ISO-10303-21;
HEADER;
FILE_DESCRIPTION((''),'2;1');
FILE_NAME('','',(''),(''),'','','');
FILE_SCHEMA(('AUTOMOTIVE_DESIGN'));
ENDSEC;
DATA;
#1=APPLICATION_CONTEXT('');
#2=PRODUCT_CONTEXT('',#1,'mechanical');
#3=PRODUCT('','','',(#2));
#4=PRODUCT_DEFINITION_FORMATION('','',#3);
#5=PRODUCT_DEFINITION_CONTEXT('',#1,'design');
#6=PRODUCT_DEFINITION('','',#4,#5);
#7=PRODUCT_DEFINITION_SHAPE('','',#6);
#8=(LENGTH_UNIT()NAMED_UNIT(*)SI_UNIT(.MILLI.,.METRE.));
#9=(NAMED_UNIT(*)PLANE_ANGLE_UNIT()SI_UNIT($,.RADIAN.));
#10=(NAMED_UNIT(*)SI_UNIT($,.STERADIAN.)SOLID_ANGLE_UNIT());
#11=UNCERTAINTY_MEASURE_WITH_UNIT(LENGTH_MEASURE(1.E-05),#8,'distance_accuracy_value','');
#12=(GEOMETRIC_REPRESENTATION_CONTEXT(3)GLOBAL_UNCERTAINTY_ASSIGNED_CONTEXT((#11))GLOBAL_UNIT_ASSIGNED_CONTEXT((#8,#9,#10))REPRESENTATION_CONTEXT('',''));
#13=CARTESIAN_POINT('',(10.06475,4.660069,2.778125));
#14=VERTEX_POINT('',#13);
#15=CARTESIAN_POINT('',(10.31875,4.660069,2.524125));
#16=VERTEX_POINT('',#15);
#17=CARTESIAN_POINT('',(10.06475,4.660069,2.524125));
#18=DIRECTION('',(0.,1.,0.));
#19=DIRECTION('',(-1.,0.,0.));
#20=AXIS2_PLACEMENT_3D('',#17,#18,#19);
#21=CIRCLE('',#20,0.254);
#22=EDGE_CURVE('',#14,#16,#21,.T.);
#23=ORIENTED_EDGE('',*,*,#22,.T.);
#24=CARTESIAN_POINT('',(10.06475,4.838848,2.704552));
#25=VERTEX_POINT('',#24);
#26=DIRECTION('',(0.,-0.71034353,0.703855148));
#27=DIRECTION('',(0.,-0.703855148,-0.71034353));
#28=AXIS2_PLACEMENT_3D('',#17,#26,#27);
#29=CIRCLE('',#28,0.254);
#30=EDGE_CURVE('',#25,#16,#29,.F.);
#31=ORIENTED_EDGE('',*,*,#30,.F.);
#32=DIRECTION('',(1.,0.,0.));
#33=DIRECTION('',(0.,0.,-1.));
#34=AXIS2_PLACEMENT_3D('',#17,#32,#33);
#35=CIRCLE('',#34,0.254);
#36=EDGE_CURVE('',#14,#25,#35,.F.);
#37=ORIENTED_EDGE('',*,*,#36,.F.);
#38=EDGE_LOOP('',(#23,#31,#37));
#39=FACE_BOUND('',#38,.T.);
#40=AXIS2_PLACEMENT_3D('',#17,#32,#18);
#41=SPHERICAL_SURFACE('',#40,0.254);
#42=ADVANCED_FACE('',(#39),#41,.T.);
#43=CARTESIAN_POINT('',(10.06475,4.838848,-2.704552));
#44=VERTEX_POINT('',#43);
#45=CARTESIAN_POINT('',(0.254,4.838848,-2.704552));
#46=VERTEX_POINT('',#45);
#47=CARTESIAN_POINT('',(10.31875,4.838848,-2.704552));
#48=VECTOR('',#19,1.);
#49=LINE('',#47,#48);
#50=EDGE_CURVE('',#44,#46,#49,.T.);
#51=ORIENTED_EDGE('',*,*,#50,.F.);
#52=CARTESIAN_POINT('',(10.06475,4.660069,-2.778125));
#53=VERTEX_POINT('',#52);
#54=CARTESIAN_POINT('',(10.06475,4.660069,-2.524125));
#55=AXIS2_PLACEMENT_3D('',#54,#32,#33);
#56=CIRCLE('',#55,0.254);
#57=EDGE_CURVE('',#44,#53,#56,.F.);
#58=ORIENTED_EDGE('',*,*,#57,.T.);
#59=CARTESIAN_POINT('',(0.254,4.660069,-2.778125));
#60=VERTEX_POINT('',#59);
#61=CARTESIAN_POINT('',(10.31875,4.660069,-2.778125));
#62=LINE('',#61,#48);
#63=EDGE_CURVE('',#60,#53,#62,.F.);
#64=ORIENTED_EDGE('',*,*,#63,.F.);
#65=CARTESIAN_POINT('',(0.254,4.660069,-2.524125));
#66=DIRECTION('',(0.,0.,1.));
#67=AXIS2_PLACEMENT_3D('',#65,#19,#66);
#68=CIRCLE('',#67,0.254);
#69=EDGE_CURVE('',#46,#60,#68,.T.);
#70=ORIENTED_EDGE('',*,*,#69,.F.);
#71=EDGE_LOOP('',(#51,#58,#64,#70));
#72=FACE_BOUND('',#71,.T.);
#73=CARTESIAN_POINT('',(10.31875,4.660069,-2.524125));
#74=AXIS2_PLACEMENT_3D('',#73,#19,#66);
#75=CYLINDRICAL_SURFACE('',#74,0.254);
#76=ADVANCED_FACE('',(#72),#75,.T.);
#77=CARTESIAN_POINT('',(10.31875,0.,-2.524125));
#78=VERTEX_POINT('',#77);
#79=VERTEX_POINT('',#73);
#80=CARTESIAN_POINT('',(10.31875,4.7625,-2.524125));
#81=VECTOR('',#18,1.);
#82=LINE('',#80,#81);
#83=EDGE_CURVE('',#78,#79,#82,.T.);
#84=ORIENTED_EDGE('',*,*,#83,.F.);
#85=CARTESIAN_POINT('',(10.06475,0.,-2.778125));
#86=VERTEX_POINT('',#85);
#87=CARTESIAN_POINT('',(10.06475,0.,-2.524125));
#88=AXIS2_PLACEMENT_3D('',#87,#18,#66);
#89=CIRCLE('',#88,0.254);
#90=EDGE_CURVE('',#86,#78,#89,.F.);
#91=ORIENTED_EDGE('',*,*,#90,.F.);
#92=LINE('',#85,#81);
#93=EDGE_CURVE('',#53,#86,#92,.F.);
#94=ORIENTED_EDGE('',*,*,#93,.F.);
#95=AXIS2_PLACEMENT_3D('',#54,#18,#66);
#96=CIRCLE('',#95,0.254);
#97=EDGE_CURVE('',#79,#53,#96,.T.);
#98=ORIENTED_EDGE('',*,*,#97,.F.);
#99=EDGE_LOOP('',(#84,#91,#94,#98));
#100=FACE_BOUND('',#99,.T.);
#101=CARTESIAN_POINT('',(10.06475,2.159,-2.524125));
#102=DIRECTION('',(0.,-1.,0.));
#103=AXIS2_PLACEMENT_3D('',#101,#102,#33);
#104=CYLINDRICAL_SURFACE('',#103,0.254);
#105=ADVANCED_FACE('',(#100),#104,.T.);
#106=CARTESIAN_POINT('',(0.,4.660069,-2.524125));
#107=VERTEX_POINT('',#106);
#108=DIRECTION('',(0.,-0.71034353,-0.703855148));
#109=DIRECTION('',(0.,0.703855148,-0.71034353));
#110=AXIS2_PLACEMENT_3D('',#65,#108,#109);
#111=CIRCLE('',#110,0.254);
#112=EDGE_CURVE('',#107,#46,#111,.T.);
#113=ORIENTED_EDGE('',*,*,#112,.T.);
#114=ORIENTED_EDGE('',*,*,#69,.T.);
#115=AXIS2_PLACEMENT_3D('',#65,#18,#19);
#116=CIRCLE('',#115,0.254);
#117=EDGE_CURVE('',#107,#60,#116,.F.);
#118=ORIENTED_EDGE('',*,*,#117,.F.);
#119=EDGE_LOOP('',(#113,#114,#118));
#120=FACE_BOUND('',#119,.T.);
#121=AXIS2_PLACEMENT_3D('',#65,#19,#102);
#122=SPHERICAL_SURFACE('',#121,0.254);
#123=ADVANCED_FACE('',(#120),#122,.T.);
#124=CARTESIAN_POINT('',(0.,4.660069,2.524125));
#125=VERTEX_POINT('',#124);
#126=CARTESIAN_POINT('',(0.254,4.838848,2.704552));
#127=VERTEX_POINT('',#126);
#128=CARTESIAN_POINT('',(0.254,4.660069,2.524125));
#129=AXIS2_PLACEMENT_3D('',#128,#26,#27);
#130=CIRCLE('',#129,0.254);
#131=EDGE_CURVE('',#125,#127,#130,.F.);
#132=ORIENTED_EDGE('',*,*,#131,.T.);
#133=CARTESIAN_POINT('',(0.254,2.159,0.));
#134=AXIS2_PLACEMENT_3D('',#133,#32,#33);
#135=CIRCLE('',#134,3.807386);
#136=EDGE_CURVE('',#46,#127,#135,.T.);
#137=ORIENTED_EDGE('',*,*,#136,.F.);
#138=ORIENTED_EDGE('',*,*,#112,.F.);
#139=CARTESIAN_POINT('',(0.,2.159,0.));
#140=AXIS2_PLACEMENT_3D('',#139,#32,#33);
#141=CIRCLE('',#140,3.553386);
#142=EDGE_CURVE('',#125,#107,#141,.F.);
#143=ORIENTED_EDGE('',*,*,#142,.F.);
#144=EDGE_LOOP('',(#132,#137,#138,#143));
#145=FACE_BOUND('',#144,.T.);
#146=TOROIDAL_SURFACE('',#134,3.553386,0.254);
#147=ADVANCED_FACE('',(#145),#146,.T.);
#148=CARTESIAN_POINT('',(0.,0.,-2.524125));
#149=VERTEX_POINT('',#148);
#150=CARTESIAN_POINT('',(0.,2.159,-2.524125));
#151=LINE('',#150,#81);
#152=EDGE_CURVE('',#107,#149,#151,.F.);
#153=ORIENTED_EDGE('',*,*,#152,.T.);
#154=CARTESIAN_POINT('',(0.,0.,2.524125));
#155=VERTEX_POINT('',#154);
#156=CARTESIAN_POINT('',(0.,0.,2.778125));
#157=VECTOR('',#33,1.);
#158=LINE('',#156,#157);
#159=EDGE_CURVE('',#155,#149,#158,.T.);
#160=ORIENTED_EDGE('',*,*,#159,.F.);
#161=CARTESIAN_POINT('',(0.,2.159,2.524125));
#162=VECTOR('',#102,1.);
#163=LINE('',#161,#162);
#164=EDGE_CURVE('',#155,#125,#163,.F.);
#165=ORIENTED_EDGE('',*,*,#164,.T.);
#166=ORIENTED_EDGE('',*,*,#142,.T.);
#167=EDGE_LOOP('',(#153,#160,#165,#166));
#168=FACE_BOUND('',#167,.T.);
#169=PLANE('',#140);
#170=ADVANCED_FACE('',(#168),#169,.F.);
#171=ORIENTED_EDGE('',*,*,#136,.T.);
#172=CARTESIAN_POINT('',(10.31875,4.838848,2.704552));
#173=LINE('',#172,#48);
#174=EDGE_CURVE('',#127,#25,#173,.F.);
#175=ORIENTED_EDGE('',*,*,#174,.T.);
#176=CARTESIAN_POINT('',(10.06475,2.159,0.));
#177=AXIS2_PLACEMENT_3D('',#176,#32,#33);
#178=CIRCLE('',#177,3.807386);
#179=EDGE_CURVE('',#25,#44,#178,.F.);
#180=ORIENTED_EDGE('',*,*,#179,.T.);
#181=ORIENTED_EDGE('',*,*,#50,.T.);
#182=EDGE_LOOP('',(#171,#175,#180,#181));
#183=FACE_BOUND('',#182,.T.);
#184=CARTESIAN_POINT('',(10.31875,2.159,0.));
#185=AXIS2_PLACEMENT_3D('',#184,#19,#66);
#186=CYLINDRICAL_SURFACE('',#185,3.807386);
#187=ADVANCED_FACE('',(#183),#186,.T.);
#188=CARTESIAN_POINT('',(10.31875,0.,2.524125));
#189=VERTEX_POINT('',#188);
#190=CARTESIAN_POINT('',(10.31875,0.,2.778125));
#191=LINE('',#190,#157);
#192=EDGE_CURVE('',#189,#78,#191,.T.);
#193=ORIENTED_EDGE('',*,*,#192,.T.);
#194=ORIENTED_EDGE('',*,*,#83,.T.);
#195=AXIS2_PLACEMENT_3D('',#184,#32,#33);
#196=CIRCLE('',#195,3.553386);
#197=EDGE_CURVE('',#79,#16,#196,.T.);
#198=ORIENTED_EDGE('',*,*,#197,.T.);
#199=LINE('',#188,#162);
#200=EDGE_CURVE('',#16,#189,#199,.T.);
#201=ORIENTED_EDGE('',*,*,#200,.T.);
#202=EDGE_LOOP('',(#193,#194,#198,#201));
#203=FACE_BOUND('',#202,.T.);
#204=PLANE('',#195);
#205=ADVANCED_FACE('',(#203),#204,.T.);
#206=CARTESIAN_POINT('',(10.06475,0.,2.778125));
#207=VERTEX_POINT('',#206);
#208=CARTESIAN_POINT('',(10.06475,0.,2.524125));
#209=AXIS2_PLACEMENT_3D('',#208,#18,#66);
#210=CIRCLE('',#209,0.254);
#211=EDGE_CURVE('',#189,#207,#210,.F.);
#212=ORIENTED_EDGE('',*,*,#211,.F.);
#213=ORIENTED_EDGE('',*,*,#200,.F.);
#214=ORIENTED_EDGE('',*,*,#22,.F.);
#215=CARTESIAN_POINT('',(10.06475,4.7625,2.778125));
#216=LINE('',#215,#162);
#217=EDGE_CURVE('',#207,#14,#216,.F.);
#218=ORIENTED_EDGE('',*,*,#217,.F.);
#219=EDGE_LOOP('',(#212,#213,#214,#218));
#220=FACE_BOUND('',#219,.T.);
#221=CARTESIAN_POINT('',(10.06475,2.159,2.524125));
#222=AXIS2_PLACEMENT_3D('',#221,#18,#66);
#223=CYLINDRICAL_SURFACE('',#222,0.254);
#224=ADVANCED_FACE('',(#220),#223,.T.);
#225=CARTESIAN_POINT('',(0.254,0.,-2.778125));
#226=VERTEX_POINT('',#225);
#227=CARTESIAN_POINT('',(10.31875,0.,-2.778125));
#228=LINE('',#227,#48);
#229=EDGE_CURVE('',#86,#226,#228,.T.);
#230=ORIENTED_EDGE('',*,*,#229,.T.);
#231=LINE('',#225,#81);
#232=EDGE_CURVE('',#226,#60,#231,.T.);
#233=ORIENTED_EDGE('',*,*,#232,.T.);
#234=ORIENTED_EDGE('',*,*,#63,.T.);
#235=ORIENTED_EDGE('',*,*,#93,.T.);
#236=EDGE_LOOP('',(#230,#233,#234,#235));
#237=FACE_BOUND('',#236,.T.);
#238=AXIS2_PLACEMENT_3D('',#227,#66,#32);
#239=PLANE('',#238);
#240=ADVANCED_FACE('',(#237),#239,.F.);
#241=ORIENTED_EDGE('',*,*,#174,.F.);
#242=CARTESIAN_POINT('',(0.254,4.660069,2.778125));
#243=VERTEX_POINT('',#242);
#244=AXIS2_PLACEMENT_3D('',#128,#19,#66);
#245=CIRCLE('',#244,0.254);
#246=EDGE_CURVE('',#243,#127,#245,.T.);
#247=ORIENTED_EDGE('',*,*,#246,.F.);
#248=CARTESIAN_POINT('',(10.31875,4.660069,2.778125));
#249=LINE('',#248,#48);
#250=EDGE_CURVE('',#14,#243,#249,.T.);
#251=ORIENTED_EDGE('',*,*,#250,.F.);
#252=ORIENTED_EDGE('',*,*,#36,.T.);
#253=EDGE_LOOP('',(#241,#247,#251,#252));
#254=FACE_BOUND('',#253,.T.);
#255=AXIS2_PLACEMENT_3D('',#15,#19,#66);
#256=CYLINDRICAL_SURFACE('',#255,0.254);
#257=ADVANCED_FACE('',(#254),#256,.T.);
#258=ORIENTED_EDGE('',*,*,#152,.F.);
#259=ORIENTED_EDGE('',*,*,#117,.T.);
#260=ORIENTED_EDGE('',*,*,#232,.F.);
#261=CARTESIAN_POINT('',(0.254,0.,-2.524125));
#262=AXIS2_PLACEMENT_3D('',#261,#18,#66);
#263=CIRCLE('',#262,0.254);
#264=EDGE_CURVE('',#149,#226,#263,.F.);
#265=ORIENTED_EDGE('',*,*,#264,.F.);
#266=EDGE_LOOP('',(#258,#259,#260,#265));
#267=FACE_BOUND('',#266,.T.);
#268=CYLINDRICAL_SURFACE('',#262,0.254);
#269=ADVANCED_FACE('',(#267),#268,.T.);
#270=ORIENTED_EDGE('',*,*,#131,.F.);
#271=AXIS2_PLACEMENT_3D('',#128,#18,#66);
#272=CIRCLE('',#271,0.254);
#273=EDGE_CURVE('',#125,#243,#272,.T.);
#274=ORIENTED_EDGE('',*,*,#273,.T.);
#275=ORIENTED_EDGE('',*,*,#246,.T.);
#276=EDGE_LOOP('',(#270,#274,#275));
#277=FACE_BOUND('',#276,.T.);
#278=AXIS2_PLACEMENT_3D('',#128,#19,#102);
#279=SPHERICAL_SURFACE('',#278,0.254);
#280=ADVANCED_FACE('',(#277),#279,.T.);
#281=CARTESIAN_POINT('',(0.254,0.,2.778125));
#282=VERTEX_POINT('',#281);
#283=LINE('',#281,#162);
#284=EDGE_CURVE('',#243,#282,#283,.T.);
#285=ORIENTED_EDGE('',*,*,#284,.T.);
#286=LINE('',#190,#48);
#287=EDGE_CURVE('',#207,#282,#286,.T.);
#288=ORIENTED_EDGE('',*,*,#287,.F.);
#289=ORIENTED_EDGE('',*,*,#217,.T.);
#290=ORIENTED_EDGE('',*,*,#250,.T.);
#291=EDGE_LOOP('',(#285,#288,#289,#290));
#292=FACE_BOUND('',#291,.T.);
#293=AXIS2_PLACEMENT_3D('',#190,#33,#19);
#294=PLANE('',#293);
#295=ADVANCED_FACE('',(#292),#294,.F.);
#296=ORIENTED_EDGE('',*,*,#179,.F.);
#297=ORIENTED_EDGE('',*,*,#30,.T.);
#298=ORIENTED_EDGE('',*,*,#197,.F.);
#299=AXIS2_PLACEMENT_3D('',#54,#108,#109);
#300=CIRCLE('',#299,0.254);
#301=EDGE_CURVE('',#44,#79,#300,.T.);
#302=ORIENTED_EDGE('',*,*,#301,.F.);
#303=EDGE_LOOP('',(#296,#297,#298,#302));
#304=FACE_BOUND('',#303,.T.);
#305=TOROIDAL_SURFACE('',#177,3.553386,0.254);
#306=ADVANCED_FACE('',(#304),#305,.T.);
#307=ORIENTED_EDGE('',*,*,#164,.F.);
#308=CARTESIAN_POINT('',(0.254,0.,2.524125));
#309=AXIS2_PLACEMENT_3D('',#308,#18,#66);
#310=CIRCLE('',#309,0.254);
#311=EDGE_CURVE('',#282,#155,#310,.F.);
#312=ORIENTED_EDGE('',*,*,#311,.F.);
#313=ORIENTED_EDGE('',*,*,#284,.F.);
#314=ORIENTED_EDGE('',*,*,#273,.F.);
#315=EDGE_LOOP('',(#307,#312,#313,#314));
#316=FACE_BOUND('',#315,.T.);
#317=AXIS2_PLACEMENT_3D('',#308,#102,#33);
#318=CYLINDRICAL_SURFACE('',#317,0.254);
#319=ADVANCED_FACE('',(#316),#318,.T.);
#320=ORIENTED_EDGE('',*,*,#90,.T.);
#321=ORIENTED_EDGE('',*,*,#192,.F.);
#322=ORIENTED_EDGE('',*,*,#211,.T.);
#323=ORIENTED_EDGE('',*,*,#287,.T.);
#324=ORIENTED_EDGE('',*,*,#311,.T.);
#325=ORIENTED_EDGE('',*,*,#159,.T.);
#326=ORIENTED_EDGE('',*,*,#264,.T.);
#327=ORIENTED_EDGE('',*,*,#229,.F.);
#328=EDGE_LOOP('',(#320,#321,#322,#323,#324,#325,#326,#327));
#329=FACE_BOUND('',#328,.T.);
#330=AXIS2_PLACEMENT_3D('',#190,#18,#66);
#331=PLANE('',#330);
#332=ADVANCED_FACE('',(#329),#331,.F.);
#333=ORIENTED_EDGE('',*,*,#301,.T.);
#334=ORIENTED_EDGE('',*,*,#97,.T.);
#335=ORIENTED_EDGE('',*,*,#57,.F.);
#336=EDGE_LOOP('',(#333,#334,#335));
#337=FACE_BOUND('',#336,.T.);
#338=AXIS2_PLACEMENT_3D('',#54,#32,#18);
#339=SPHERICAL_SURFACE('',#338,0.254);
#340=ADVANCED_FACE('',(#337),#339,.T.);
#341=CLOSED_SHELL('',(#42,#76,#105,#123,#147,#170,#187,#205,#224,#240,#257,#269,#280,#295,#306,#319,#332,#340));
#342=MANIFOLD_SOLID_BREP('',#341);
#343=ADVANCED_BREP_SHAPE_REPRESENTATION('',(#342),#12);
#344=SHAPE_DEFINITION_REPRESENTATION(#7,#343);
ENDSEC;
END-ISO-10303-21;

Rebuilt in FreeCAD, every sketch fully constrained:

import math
import FreeCAD as App
import Part
import Sketcher
from FreeCAD import Vector
Q = App.Units.Quantity


def edges_at(feature, points):
    """Names of the edges that pass closest to the given points."""
    edges = feature.Shape.Edges
    near = lambda p: min(range(len(edges)), key=lambda i: edges[i].distToShape(Part.Vertex(*p))[0])
    return sorted({f"Edge{near(p) + 1}" for p in points})

doc = App.newDocument("Part")
params = doc.addObject("Spreadsheet::Sheet", "Params")
for row, (alias, value) in enumerate([
    ("sketch1_width", "0.1875 in"),
    ("sketch1_height", "0.21875 in"),
    ("pad1_length", "0.40625 in"),
    ("fillet_radius", "0.01 in"),
], start=1):
    params.set(f"A{row}", alias)
    params.set(f"B{row}", "=" + value)
    params.setAlias(f"B{row}", alias)

body = doc.addObject("PartDesign::Body", "Body")

sketch1 = body.newObject("Sketcher::SketchObject", "Sketch")
sketch1.AttachmentSupport = (doc.getObject("YZ_Plane"), [""])
sketch1.MapMode = "FlatFace"
sketch1.addGeometry([
    Part.LineSegment(Vector(0, 2.8, 0), Vector(0, -2.8, 0)),
    Part.LineSegment(Vector(0, -2.8, 0), Vector(4.8, -2.8, 0)),
    Part.ArcOfCircle(Part.Circle(Vector(2.2, 0, 0), Vector(0, 0, 1), 3.8), math.radians(-47), math.radians(47)),
    Part.LineSegment(Vector(4.8, 2.8, 0), Vector(0, 2.8, 0)),
], False)
sketch1.addConstraint([
    Sketcher.Constraint("Coincident", 0, 2, 1, 1),
    Sketcher.Constraint("Coincident", 1, 2, 2, 1),
    Sketcher.Constraint("Coincident", 2, 2, 3, 1),
    Sketcher.Constraint("Coincident", 3, 2, 0, 1),
    Sketcher.Constraint("Vertical", 0),
    Sketcher.Constraint("Horizontal", 1),
    Sketcher.Constraint("Horizontal", 3),
    Sketcher.Constraint("Symmetric", 0, 2, 3, 2, -1, 1),
    Sketcher.Constraint("PointOnObject", 2, 3, -1),
    Sketcher.Constraint("DistanceX", 1, 1, 1, 2, Q("0.1875 in")),
    Sketcher.Constraint("DistanceY", 0, 2, 0, 1, Q("0.21875 in")),
    Sketcher.Constraint("DistanceX", -1, 1, 2, 3, Q("0.085 in")),
])
sketch1.setExpression("Constraints[9]", "Params.sketch1_width")
sketch1.setExpression("Constraints[10]", "Params.sketch1_height")
pad1 = body.newObject("PartDesign::Pad", "Pad")
pad1.Profile = sketch1
pad1.setExpression("Length", "Params.pad1_length")
doc.recompute()

fillet = body.newObject("PartDesign::Fillet", "Fillet")
fillet.Base = (pad1, edges_at(pad1, [
    (10.319, 2.381, 2.778),
    (10.319, 2.381, -2.778),
    (0, 2.381, 2.778),
    (0, 5.966, 0),
    (0, 2.381, -2.778),
    (5.159, 4.763, 2.778),
    (5.159, 4.763, -2.778),
    (10.319, 5.966, 0),
]))
fillet.setExpression("Radius", "Params.fillet_radius")

doc.recompute()
